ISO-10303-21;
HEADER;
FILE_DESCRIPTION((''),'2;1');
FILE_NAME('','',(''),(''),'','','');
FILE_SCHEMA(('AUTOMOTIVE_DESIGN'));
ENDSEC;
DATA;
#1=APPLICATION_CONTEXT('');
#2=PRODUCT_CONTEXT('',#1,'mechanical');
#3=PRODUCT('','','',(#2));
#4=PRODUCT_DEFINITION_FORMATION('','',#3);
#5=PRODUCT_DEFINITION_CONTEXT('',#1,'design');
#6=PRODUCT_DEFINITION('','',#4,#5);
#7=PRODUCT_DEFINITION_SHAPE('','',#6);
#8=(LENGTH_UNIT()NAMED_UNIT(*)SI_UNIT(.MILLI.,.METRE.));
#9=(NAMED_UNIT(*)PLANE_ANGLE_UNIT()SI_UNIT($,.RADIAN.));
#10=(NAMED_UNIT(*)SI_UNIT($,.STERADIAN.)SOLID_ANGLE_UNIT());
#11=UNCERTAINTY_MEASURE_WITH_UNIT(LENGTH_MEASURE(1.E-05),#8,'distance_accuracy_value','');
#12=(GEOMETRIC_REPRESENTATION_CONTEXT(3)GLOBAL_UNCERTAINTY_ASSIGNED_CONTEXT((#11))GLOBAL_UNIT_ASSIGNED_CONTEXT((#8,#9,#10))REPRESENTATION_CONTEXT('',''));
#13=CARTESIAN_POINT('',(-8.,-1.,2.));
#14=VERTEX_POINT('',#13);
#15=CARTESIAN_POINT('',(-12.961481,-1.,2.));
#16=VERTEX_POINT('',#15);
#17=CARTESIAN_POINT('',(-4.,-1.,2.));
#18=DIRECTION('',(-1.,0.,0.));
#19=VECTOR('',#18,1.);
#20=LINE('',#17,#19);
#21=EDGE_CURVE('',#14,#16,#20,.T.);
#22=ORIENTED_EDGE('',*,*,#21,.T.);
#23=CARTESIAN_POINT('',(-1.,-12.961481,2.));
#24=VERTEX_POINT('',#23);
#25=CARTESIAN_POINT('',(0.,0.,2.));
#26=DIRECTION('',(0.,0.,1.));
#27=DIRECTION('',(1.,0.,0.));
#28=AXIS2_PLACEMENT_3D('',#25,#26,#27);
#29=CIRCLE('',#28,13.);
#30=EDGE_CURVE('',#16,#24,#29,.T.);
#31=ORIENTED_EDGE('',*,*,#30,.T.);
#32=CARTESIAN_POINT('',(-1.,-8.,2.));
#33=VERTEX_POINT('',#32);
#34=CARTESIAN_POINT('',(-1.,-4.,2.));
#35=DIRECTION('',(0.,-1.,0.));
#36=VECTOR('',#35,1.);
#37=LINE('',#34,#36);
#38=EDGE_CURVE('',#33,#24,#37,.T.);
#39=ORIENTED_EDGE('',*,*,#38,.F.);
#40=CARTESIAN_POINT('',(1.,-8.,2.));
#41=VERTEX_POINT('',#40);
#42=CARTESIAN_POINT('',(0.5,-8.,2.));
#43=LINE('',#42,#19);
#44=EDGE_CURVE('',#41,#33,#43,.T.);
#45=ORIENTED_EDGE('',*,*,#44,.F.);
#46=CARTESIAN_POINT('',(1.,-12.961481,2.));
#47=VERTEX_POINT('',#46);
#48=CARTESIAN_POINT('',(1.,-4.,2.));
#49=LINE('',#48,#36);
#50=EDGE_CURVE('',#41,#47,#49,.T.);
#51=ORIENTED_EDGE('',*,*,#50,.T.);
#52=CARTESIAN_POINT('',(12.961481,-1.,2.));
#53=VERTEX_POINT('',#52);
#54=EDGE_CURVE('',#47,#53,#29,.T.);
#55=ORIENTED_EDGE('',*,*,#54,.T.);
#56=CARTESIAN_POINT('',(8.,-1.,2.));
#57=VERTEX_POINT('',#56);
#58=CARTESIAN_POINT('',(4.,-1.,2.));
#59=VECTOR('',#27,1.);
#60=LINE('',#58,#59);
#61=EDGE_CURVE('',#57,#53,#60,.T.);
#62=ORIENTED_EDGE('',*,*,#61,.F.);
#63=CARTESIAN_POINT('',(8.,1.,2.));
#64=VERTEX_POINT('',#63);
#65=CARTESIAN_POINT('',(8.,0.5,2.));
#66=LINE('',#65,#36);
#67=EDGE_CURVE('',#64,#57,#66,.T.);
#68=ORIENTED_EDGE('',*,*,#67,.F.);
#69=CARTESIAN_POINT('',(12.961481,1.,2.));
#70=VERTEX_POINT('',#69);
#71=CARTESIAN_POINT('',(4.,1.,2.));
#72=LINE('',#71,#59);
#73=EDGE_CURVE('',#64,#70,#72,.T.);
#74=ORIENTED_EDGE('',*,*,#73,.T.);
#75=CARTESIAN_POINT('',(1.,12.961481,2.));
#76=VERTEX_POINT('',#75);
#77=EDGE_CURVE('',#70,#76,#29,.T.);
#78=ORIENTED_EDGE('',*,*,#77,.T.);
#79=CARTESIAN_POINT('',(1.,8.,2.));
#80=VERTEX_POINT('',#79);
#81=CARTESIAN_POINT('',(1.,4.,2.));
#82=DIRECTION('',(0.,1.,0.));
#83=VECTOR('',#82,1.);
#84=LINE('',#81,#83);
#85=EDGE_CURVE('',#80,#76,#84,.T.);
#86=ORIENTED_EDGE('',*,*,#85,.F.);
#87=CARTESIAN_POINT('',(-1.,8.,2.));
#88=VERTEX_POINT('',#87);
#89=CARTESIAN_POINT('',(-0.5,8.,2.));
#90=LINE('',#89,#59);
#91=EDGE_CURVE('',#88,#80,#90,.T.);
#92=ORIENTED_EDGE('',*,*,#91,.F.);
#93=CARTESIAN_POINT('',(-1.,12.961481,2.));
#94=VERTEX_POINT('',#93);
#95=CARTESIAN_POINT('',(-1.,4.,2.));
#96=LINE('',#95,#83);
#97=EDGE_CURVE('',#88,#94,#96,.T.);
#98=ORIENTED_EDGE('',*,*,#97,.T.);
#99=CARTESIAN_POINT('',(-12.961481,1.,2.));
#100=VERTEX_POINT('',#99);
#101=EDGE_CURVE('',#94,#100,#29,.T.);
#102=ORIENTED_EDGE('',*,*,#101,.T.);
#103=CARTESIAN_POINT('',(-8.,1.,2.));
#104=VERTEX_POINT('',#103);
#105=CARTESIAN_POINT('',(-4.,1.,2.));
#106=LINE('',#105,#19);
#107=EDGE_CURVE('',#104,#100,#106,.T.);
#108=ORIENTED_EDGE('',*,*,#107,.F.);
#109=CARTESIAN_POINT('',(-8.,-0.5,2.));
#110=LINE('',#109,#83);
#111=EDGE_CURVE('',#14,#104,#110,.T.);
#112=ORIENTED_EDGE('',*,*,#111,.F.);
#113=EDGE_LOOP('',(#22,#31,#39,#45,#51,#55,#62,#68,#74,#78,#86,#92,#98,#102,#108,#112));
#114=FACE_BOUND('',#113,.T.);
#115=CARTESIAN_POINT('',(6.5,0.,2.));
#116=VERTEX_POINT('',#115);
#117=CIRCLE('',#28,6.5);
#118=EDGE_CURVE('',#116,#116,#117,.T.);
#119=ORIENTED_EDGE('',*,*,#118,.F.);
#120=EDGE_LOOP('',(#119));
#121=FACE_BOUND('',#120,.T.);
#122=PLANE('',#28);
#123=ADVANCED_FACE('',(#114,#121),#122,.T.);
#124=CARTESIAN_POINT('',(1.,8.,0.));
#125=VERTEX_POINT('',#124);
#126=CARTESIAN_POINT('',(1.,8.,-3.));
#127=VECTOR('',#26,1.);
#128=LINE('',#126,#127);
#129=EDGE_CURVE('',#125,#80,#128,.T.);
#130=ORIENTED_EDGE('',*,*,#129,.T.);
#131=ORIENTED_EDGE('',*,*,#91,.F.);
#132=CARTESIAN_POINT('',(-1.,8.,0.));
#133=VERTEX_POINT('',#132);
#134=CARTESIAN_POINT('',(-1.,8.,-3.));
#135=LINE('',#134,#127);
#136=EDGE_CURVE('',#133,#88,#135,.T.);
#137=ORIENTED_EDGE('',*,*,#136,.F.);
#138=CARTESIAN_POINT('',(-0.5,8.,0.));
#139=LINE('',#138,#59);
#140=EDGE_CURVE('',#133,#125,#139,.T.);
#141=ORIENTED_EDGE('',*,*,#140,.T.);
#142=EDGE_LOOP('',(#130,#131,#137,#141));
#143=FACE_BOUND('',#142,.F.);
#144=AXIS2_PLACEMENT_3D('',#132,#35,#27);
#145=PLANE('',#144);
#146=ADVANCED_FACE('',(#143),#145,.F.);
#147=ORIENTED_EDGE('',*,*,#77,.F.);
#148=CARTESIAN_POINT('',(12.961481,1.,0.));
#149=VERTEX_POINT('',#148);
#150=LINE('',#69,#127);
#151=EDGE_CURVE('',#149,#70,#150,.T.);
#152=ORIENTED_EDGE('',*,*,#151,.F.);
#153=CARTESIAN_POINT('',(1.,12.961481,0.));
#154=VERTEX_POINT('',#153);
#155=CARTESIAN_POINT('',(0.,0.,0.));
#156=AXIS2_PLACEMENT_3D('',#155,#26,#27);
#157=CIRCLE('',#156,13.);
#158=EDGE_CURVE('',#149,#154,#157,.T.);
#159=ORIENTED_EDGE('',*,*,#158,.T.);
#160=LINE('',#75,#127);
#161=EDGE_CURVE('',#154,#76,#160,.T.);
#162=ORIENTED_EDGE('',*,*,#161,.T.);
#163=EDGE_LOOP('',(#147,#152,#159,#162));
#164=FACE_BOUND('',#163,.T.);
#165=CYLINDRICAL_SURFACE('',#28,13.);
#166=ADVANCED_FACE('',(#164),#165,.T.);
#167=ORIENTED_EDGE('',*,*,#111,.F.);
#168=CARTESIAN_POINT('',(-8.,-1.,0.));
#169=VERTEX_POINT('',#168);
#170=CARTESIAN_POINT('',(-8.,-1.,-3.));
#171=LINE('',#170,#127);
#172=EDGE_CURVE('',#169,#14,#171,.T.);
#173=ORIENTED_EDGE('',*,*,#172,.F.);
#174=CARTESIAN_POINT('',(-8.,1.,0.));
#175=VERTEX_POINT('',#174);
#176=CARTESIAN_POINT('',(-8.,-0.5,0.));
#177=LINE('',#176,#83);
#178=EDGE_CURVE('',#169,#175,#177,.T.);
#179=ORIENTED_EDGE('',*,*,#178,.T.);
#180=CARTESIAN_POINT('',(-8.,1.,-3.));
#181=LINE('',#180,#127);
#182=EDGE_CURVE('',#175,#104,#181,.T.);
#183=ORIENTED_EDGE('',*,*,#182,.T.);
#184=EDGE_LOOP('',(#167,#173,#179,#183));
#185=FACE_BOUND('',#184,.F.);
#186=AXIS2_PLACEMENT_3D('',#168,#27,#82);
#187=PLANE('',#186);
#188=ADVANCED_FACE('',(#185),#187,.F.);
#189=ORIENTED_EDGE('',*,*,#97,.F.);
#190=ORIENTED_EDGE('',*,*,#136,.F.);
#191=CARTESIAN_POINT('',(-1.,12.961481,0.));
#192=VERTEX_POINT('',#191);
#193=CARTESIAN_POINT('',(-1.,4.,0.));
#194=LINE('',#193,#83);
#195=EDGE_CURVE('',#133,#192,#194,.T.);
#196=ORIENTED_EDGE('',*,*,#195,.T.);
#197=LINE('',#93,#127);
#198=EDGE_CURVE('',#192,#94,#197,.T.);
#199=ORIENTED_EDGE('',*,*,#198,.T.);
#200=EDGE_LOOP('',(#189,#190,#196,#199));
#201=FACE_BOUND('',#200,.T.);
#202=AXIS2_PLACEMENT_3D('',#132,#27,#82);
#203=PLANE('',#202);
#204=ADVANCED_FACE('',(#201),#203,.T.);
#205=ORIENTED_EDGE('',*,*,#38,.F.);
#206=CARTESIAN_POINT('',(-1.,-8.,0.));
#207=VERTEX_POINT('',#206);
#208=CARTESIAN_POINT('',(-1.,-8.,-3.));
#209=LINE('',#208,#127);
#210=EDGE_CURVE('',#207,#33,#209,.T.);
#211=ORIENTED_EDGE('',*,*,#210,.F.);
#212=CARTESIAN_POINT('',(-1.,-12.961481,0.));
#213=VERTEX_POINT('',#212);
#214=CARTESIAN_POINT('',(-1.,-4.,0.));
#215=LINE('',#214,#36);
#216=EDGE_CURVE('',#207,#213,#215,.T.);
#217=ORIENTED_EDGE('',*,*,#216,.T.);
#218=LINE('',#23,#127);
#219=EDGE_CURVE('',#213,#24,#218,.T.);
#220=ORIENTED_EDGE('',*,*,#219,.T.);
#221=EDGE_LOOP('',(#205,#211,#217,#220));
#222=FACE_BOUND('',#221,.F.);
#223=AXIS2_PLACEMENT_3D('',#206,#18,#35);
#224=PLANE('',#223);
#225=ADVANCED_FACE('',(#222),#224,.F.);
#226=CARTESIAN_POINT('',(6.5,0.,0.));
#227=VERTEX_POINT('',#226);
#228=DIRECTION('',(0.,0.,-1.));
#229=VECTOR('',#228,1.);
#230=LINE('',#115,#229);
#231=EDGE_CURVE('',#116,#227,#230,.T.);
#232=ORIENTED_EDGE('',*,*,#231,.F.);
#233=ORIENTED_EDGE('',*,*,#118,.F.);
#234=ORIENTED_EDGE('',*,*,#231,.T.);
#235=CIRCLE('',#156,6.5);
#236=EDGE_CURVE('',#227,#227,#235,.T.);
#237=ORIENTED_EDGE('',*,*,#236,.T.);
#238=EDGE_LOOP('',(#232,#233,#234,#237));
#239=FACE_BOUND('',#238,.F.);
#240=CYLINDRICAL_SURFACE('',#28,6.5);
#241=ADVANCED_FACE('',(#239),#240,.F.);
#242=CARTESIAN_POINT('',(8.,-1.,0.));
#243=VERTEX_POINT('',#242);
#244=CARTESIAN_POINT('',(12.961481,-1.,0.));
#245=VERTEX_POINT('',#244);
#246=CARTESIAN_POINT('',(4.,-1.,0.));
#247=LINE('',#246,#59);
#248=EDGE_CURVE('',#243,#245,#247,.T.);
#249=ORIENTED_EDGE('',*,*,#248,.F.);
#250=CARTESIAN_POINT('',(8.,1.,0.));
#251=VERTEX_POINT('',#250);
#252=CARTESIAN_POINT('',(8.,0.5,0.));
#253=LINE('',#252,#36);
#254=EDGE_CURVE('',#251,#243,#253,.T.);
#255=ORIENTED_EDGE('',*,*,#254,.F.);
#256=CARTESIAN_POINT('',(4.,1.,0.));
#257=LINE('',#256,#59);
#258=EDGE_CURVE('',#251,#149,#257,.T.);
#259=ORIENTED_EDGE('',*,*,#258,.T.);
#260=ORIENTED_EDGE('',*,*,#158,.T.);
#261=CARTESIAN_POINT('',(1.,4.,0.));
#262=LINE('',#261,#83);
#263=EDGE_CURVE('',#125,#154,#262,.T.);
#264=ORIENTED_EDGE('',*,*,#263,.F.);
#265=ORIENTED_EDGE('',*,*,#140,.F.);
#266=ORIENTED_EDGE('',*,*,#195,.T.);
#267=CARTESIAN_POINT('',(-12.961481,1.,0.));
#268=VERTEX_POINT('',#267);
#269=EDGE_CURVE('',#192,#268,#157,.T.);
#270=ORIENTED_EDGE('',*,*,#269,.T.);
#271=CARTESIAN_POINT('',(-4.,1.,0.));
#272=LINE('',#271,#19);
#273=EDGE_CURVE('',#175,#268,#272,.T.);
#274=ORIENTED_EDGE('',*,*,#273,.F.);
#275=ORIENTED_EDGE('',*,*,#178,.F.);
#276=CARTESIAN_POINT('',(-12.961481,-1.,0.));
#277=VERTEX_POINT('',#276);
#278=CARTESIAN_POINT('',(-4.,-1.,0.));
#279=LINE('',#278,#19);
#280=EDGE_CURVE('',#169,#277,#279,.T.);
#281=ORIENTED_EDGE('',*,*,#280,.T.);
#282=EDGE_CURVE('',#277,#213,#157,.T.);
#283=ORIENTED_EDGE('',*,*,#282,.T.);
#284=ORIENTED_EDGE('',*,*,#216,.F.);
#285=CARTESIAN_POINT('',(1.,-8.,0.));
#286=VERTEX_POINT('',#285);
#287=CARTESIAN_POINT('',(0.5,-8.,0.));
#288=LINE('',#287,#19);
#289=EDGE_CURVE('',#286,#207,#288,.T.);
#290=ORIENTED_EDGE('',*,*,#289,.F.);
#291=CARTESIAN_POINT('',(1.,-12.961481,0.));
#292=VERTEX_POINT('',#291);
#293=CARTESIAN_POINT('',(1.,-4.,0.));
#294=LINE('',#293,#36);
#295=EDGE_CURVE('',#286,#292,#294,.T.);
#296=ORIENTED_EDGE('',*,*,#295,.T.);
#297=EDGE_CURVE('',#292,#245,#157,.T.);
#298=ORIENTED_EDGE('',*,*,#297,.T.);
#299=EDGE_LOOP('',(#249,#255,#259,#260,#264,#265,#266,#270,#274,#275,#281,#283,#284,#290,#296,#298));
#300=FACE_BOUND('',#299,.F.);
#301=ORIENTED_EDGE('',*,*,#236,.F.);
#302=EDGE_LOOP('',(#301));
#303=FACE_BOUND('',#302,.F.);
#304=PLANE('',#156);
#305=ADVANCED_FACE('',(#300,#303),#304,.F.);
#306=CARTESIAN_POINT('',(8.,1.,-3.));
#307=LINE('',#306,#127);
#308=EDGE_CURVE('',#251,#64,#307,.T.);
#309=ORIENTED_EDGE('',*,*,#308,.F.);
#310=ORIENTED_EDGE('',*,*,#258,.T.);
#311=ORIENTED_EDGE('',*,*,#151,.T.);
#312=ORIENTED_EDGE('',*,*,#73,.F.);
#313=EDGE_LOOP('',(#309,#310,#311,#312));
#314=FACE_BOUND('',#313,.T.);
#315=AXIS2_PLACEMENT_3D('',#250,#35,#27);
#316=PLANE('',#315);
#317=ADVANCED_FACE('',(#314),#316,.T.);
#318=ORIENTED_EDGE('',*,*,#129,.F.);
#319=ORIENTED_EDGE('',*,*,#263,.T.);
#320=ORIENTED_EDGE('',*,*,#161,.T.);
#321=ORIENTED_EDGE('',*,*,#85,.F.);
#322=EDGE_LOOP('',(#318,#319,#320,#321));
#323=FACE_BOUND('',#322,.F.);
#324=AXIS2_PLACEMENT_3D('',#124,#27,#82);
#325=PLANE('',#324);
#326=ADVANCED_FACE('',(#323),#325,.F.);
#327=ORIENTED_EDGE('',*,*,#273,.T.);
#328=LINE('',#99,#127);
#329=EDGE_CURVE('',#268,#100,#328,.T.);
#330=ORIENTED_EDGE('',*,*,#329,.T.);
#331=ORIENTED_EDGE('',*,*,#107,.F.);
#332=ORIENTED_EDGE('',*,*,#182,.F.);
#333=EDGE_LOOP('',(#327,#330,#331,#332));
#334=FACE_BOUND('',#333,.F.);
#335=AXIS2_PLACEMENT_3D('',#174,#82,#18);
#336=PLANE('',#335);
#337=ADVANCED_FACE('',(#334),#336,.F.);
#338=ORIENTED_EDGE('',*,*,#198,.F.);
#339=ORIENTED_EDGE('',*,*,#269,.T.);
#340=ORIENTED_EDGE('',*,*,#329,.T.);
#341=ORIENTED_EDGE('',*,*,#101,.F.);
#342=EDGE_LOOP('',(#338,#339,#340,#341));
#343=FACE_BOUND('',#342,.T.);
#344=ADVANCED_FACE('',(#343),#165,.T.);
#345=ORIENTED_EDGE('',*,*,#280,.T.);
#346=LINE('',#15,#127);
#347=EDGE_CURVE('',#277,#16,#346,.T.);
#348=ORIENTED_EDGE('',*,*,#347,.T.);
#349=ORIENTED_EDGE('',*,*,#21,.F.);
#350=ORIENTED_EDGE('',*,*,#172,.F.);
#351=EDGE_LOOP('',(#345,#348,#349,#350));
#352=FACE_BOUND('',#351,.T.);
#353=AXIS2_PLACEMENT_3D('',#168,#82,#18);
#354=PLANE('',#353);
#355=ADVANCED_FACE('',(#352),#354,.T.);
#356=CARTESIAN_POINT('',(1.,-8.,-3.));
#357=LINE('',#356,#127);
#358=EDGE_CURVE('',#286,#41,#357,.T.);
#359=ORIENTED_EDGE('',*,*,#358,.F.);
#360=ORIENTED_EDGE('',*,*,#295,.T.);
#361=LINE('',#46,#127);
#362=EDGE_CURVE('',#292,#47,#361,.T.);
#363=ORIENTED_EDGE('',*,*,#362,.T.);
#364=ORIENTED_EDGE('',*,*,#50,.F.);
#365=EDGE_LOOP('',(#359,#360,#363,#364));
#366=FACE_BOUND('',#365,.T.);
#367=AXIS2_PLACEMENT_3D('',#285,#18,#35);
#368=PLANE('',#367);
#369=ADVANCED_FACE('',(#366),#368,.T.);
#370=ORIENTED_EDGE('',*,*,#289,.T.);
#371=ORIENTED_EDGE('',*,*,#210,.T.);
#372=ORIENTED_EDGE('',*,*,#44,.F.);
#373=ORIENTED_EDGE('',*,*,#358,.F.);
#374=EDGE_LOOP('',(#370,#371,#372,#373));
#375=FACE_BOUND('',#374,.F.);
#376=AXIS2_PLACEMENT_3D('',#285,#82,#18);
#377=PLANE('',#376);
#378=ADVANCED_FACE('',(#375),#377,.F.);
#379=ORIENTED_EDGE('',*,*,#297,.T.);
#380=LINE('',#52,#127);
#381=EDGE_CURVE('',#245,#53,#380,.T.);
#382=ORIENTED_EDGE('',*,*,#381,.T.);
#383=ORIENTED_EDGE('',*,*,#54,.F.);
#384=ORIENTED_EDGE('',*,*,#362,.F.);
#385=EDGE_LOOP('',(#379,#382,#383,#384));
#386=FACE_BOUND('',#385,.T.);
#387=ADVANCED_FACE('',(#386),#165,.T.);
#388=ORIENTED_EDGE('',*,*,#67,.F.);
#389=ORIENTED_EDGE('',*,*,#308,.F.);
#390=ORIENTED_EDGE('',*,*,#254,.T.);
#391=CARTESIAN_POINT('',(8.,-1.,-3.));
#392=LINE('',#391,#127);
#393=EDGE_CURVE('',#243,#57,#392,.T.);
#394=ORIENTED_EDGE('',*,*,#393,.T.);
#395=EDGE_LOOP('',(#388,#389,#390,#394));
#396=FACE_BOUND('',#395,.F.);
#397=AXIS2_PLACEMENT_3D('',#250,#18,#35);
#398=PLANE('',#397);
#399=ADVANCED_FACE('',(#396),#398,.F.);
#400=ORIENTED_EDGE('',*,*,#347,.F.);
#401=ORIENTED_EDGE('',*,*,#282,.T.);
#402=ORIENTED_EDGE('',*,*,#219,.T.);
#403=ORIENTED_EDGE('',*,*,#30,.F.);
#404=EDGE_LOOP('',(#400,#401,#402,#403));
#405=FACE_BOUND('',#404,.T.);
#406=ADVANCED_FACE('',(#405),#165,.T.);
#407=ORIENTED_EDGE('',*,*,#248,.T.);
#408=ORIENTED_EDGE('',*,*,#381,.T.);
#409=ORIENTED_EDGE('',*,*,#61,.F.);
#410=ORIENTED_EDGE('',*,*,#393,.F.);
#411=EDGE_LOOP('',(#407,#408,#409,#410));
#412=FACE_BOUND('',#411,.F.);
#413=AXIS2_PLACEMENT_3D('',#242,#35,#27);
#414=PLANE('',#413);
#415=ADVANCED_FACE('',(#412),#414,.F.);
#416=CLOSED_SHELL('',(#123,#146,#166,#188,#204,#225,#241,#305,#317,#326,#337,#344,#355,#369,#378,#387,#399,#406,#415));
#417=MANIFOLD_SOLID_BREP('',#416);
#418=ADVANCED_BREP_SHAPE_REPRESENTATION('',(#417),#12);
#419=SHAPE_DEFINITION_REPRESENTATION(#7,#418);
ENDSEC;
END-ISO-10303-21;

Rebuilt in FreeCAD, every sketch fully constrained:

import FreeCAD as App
import Part
import Sketcher
Q = App.Units.Quantity

doc = App.newDocument("Part")
params = doc.addObject("Spreadsheet::Sheet", "Params")
for row, (alias, value) in enumerate([
    ("sketch1_diameter", "4.6 mm"),
    ("sketch1_width", "2 mm"),
    ("sketch1_height", "5 mm"),
    ("pad1_length", "5 mm"),
    ("pad1_length2", "3 mm"),
    ("sketch2_diameter", "26 mm"),
    ("sketch2_diameter2", "13 mm"),
    ("pad2_length", "2 mm"),
], start=1):
    params.set(f"A{row}", alias)
    params.set(f"B{row}", "=" + value)
    params.setAlias(f"B{row}", alias)

body = doc.addObject("PartDesign::Body", "Body")
body.AllowCompound = True

sketch1 = body.newObject("Sketcher::SketchObject", "Sketch")
sketch1.AttachmentSupport = (doc.getObject("XY_Plane"), [""])
sketch1.MapMode = "FlatFace"
sketch1.addGeometry(Part.Circle(App.Vector(0, 38.25, 0), App.Vector(0, 0, 1), 2.3), False)
sketch1.addGeometry(Part.LineSegment(App.Vector(-1, 13, 0), App.Vector(-1, 8, 0)), False)
sketch1.addGeometry(Part.LineSegment(App.Vector(-1, 8, 0), App.Vector(1, 8, 0)), False)
sketch1.addGeometry(Part.LineSegment(App.Vector(1, 8, 0), App.Vector(1, 13, 0)), False)
sketch1.addGeometry(Part.LineSegment(App.Vector(1, 13, 0), App.Vector(-1, 13, 0)), False)
sketch1.addConstraint(Sketcher.Constraint("Coincident", 1, 2, 2, 1))
sketch1.addConstraint(Sketcher.Constraint("Coincident", 2, 2, 3, 1))
sketch1.addConstraint(Sketcher.Constraint("Coincident", 3, 2, 4, 1))
sketch1.addConstraint(Sketcher.Constraint("Coincident", 4, 2, 1, 1))
sketch1.addConstraint(Sketcher.Constraint("Vertical", 1))
sketch1.addConstraint(Sketcher.Constraint("Horizontal", 2))
sketch1.addConstraint(Sketcher.Constraint("Vertical", 3))
sketch1.addConstraint(Sketcher.Constraint("Horizontal", 4))
sketch1.addConstraint(Sketcher.Constraint("PointOnObject", 0, 3, -2))
sketch1.addConstraint(Sketcher.Constraint("Diameter", 0, Q("4.6 mm")))
sketch1.addConstraint(Sketcher.Constraint("DistanceX", 2, 1, 2, 2, Q("2 mm")))
sketch1.addConstraint(Sketcher.Constraint("DistanceY", 1, 2, 1, 1, Q("5 mm")))
sketch1.addConstraint(Sketcher.Constraint("DistanceX", 1, 2, -1, 1, Q("1 mm")))
sketch1.addConstraint(Sketcher.Constraint("DistanceY", -1, 1, 1, 2, Q("8 mm")))
sketch1.addConstraint(Sketcher.Constraint("DistanceY", -1, 1, 0, 3, Q("38.25 mm")))
sketch1.setExpression("Constraints[9]", "Params.sketch1_diameter")
sketch1.setExpression("Constraints[10]", "Params.sketch1_width")
sketch1.setExpression("Constraints[11]", "Params.sketch1_height")
pad1 = body.newObject("PartDesign::Pad", "Pad")
pad1.Profile = sketch1
pad1.Type = "TwoLengths"
pad1.setExpression("Length", "Params.pad1_length")
pad1.setExpression("Length2", "Params.pad1_length2")
body2 = doc.addObject("PartDesign::Body", "Body001")
body2.AllowCompound = True
doc.recompute()

body2.BaseFeature = body
doc.recompute()

body3 = doc.addObject("PartDesign::Body", "Body002")
body3.BaseFeature = body
body3.Placement = App.Placement(App.Vector(0, 0, 0), App.Rotation(App.Vector(0, 0, 1), 90))
boolean = body2.newObject("PartDesign::Boolean", "Boolean")
boolean.Type = "Fuse"
boolean.addObjects([body3])
doc.recompute()

body4 = doc.addObject("PartDesign::Body", "Body003")
body4.BaseFeature = body
body4.Placement = App.Placement(App.Vector(0, 0, 0), App.Rotation(App.Vector(0, 0, 1), 180))
boolean2 = body2.newObject("PartDesign::Boolean", "Boolean001")
boolean2.Type = "Fuse"
boolean2.addObjects([body4])
doc.recompute()

body.Placement = App.Placement(App.Vector(0, 0, 0), App.Rotation(App.Vector(0, 0, 1), 270))
boolean3 = body2.newObject("PartDesign::Boolean", "Boolean002")
boolean3.Type = "Fuse"
boolean3.addObjects([body])
body5 = doc.addObject("PartDesign::Body", "Body004")

sketch2 = body5.newObject("Sketcher::SketchObject", "Sketch001")
sketch2.AttachmentSupport = (doc.getObject("XY_Plane004"), [""])
sketch2.MapMode = "FlatFace"
sketch2.AttachmentOffset = App.Placement(App.Vector(0, 0, 2), App.Rotation())
sketch2.addGeometry(Part.Circle(App.Vector(0, 0, 0), App.Vector(0, 0, 1), 13), False)
sketch2.addGeometry(Part.Circle(App.Vector(0, 0, 0), App.Vector(0, 0, 1), 6.5), False)
sketch2.addConstraint(Sketcher.Constraint("Coincident", 0, 3, -1, 1))
sketch2.addConstraint(Sketcher.Constraint("Coincident", 1, 3, -1, 1))
sketch2.addConstraint(Sketcher.Constraint("Diameter", 0, Q("26 mm")))
sketch2.addConstraint(Sketcher.Constraint("Diameter", 1, Q("13 mm")))
sketch2.setExpression("Constraints[2]", "Params.sketch2_diameter")
sketch2.setExpression("Constraints[3]", "Params.sketch2_diameter2")
pad2 = body5.newObject("PartDesign::Pad", "Pad001")
pad2.Profile = sketch2
pad2.setExpression("Length", "Params.pad2_length")
pad2.Reversed = True
doc.recompute()

boolean4 = body5.newObject("PartDesign::Boolean", "Boolean003")
boolean4.Type = "Cut"
boolean4.addObjects([body2])

doc.recompute()
